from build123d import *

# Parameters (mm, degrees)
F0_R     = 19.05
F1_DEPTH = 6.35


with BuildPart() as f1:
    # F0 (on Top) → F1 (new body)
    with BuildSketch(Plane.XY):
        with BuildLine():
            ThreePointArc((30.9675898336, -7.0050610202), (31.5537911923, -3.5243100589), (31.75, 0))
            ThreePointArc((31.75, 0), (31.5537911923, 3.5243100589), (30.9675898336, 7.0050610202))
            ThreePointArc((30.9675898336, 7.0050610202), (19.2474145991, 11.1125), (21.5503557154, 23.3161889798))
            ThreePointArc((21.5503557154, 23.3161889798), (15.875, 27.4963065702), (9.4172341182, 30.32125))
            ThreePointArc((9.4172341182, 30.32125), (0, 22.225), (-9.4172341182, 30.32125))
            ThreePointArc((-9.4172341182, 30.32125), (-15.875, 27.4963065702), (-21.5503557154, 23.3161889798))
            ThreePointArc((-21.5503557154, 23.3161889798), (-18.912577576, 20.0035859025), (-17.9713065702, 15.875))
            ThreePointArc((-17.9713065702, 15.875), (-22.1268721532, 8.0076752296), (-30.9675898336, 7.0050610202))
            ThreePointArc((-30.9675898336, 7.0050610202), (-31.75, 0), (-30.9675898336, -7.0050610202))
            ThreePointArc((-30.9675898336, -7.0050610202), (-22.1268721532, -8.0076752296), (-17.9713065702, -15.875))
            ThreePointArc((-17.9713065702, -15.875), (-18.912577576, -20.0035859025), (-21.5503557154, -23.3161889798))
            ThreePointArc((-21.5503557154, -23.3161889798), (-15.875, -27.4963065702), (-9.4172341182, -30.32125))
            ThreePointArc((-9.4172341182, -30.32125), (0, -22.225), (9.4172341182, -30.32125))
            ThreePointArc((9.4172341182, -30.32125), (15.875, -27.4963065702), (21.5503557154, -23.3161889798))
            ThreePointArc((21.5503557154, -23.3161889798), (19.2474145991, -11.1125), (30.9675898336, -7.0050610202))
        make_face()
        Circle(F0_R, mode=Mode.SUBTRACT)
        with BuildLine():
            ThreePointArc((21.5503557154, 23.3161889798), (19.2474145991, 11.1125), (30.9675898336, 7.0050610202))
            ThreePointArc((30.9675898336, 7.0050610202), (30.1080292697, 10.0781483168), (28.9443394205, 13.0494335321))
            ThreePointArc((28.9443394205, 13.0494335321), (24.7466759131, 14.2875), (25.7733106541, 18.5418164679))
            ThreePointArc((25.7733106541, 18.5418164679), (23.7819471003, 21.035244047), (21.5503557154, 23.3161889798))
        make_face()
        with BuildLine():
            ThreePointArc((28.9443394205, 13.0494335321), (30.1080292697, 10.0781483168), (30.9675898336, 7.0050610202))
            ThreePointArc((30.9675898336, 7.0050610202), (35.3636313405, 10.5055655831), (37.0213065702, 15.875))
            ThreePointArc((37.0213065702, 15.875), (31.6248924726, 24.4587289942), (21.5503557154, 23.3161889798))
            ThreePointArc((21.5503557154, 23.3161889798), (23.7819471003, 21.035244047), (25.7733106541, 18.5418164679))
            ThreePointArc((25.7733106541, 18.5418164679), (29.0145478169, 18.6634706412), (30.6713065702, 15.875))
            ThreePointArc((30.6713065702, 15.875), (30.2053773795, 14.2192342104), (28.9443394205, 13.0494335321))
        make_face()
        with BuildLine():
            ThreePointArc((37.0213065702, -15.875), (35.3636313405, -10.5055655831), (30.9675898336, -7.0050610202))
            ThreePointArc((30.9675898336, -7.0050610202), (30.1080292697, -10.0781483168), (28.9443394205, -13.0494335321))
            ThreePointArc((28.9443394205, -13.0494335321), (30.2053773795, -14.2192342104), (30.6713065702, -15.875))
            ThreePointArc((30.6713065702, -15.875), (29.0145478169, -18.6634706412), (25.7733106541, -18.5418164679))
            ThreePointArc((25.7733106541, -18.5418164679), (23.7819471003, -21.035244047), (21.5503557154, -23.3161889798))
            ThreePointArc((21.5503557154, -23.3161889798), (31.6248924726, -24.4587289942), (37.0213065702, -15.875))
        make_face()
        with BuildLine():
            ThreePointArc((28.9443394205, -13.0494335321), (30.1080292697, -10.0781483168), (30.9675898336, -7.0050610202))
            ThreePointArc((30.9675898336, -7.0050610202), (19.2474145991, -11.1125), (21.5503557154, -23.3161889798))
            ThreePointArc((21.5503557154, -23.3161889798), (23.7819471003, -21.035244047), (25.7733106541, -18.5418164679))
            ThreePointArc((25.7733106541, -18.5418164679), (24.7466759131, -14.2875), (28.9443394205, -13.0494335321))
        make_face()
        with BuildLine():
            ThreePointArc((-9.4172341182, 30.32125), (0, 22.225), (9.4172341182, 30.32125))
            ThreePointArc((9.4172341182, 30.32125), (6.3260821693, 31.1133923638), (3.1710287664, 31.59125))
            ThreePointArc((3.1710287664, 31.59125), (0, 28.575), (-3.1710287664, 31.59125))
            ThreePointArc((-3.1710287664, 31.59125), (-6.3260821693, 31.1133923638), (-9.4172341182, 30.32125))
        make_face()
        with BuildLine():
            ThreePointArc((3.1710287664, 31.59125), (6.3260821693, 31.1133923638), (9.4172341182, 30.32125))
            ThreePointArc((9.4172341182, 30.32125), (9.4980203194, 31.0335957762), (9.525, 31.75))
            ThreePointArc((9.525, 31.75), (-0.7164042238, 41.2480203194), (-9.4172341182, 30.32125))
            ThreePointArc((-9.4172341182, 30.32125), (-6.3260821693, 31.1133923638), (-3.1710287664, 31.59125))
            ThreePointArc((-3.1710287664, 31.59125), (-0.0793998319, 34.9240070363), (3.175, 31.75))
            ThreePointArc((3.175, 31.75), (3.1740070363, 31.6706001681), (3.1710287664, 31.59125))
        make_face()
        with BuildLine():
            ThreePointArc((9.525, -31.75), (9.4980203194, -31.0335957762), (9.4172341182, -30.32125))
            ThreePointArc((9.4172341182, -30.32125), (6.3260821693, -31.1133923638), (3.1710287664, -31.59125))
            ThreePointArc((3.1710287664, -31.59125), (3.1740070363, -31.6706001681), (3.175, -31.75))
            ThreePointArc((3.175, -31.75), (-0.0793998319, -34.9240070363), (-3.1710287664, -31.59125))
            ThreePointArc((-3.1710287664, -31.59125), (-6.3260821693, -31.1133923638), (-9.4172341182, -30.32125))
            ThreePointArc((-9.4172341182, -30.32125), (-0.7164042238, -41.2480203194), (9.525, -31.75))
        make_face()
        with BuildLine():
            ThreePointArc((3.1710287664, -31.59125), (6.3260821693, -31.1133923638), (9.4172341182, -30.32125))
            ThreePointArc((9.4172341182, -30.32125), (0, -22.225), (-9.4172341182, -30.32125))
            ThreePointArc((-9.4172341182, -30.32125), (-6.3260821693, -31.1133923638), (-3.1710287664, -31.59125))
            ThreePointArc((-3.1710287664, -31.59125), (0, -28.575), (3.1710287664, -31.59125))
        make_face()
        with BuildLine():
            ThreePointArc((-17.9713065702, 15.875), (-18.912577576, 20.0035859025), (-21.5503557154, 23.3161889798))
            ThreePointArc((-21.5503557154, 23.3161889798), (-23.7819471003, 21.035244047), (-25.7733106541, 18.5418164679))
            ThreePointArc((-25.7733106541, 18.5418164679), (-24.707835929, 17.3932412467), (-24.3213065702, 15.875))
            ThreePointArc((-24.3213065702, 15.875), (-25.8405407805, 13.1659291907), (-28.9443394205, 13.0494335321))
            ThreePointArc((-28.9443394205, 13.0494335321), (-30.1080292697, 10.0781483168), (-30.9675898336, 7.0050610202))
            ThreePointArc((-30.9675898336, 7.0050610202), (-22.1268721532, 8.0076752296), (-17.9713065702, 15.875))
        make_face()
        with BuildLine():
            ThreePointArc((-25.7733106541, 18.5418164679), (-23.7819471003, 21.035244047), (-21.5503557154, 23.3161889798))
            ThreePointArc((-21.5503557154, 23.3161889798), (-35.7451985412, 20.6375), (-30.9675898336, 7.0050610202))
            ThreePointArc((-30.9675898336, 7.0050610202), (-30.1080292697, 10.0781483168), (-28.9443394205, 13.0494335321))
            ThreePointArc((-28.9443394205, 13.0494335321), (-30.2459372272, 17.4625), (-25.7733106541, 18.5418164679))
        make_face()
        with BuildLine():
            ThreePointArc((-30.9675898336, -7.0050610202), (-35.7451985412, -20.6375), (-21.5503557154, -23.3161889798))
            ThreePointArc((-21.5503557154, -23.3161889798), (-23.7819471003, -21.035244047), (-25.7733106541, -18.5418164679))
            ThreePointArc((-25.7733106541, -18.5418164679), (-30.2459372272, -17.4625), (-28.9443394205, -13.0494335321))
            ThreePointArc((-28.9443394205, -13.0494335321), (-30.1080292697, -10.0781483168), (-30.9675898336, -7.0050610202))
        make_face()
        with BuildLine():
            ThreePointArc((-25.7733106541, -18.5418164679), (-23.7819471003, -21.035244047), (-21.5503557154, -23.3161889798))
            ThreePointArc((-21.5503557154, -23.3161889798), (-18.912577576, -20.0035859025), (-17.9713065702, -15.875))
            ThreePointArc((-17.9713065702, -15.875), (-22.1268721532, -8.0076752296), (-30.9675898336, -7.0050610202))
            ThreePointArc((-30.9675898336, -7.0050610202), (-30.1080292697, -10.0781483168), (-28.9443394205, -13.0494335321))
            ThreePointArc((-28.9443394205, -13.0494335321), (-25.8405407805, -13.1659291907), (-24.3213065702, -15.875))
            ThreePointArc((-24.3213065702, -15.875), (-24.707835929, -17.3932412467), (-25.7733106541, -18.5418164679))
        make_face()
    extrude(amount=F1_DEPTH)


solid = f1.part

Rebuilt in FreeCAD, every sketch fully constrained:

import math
import FreeCAD as App
import Part
import Sketcher
from FreeCAD import Vector
Q = App.Units.Quantity

doc = App.newDocument("Part")
body = doc.addObject("PartDesign::Body", "Body")

sketch1 = body.newObject("Sketcher::SketchObject", "Sketch")
sketch1.AttachmentSupport = (doc.getObject("XY_Plane"), [""])
sketch1.MapMode = "FlatFace"
sketch1.addGeometry(Part.ArcOfCircle(Part.Circle(Vector(0, 0, 0), Vector(0, 0, 1), 31.75), math.radians(-12.75), math.radians(0)), False)
sketch1.addGeometry(Part.ArcOfCircle(Part.Circle(Vector(0, 0, 0), Vector(0, 0, 1), 31.75), math.radians(0), math.radians(12.75)), False)
sketch1.addGeometry(Part.ArcOfCircle(Part.Circle(Vector(27.5, 15.88, 0), Vector(0, 0, 1), 9.53), math.radians(-69), math.radians(0)), False)
sketch1.addGeometry(Part.ArcOfCircle(Part.Circle(Vector(27.5, 15.88, 0), Vector(0, 0, 1), 9.53), math.radians(0), math.radians(129)), False)
sketch1.addGeometry(Part.ArcOfCircle(Part.Circle(Vector(0, 0, 0), Vector(0, 0, 1), 31.75), math.radians(47), math.radians(73)), False)
sketch1.addGeometry(Part.ArcOfCircle(Part.Circle(Vector(0, 31.75, 0), Vector(0, 0, 1), 9.53), math.radians(-8.63), math.radians(0)), False)
sketch1.addGeometry(Part.ArcOfCircle(Part.Circle(Vector(0, 31.75, 0), Vector(0, 0, 1), 9.53), math.radians(0), math.radians(189)), False)
sketch1.addGeometry(Part.ArcOfCircle(Part.Circle(Vector(0, 0, 0), Vector(0, 0, 1), 31.75), math.radians(107), math.radians(133)), False)
sketch1.addGeometry(Part.ArcOfCircle(Part.Circle(Vector(-27.5, 15.88, 0), Vector(0, 0, 1), 9.53), math.radians(51), math.radians(249)), False)
sketch1.addGeometry(Part.ArcOfCircle(Part.Circle(Vector(0, 0, 0), Vector(0, 0, 1), 31.75), math.radians(167), math.radians(193)), False)
sketch1.addGeometry(Part.ArcOfCircle(Part.Circle(Vector(-27.5, -15.88, 0), Vector(0, 0, 1), 9.53), math.radians(111), math.radians(309)), False)
sketch1.addGeometry(Part.ArcOfCircle(Part.Circle(Vector(0, 0, 0), Vector(0, 0, 1), 31.75), math.radians(-133), math.radians(-107)), False)
sketch1.addGeometry(Part.ArcOfCircle(Part.Circle(Vector(0, -31.75, 0), Vector(0, 0, 1), 9.53), math.radians(171), math.radians(360)), False)
sketch1.addGeometry(Part.ArcOfCircle(Part.Circle(Vector(0, -31.75, 0), Vector(0, 0, 1), 9.53), math.radians(0), math.radians(8.63)), False)
sketch1.addGeometry(Part.ArcOfCircle(Part.Circle(Vector(0, 0, 0), Vector(0, 0, 1), 31.75), math.radians(-73), math.radians(-47)), False)
sketch1.addGeometry(Part.ArcOfCircle(Part.Circle(Vector(27.5, -15.88, 0), Vector(0, 0, 1), 9.53), math.radians(-129), math.radians(0)), False)
sketch1.addGeometry(Part.ArcOfCircle(Part.Circle(Vector(27.5, -15.88, 0), Vector(0, 0, 1), 9.53), math.radians(0), math.radians(69)), False)
sketch1.addGeometry(Part.ArcOfCircle(Part.Circle(Vector(-27.5, 15.88, 0), Vector(0, 0, 1), 3.17), math.radians(0), math.radians(57)), False)
sketch1.addGeometry(Part.ArcOfCircle(Part.Circle(Vector(-27.5, 15.88, 0), Vector(0, 0, 1), 3.17), math.radians(-117), math.radians(0)), False)
sketch1.addGeometry(Part.ArcOfCircle(Part.Circle(Vector(-27.5, 15.88, 0), Vector(0, 0, 1), 3.17), math.radians(57), math.radians(243)), False)
sketch1.addGeometry(Part.ArcOfCircle(Part.Circle(Vector(0, 31.75, 0), Vector(0, 0, 1), 3.17), math.radians(-177), math.radians(-3)), False)
sketch1.addGeometry(Part.ArcOfCircle(Part.Circle(Vector(0, 31.75, 0), Vector(0, 0, 1), 3.17), math.radians(0), math.radians(183)), False)
sketch1.addGeometry(Part.ArcOfCircle(Part.Circle(Vector(0, 31.75, 0), Vector(0, 0, 1), 3.18), math.radians(-2.87), math.radians(0)), False)
sketch1.addGeometry(Part.ArcOfCircle(Part.Circle(Vector(27.5, 15.88, 0), Vector(0, 0, 1), 3.17), math.radians(123), math.radians(297)), False)
sketch1.addGeometry(Part.ArcOfCircle(Part.Circle(Vector(27.5, 15.88, 0), Vector(0, 0, 1), 3.17), math.radians(0), math.radians(123)), False)
sketch1.addGeometry(Part.ArcOfCircle(Part.Circle(Vector(27.5, 15.88, 0), Vector(0, 0, 1), 3.17), math.radians(-63), math.radians(0)), False)
sketch1.addGeometry(Part.Circle(Vector(0, 0, 0), Vector(0, 0, 1), 19.05), False)
sketch1.addGeometry(Part.ArcOfCircle(Part.Circle(Vector(27.5, -15.88, 0), Vector(0, 0, 1), 3.17), math.radians(63), math.radians(237)), False)
sketch1.addGeometry(Part.ArcOfCircle(Part.Circle(Vector(27.5, -15.88, 0), Vector(0, 0, 1), 3.17), math.radians(0), math.radians(63)), False)
sketch1.addGeometry(Part.ArcOfCircle(Part.Circle(Vector(27.5, -15.88, 0), Vector(0, 0, 1), 3.17), math.radians(-123), math.radians(0)), False)
sketch1.addGeometry(Part.ArcOfCircle(Part.Circle(Vector(0, -31.75, 0), Vector(0, 0, 1), 3.17), math.radians(3), math.radians(177)), False)
sketch1.addGeometry(Part.ArcOfCircle(Part.Circle(Vector(0, -31.75, 0), Vector(0, 0, 1), 3.18), math.radians(0), math.radians(2.87)), False)
sketch1.addGeometry(Part.ArcOfCircle(Part.Circle(Vector(0, -31.75, 0), Vector(0, 0, 1), 3.17), math.radians(177), math.radians(360)), False)
sketch1.addGeometry(Part.ArcOfCircle(Part.Circle(Vector(-27.5, -15.88, 0), Vector(0, 0, 1), 3.17), math.radians(0), math.radians(117)), False)
sketch1.addGeometry(Part.ArcOfCircle(Part.Circle(Vector(-27.5, -15.88, 0), Vector(0, 0, 1), 3.17), math.radians(-57), math.radians(0)), False)
sketch1.addGeometry(Part.ArcOfCircle(Part.Circle(Vector(-27.5, -15.88, 0), Vector(0, 0, 1), 3.17), math.radians(117), math.radians(303)), False)
sketch1.addConstraint(Sketcher.Constraint("Tangent", 0, 2, 1, 1))
sketch1.addConstraint(Sketcher.Constraint("Coincident", 1, 2, 2, 1))
sketch1.addConstraint(Sketcher.Constraint("Tangent", 2, 2, 3, 1))
sketch1.addConstraint(Sketcher.Constraint("Coincident", 3, 2, 4, 1))
sketch1.addConstraint(Sketcher.Constraint("Coincident", 4, 2, 5, 1))
sketch1.addConstraint(Sketcher.Constraint("Tangent", 5, 2, 6, 1))
sketch1.addConstraint(Sketcher.Constraint("Coincident", 6, 2, 7, 1))
sketch1.addConstraint(Sketcher.Constraint("Coincident", 7, 2, 8, 1))
sketch1.addConstraint(Sketcher.Constraint("Coincident", 8, 2, 9, 1))
sketch1.addConstraint(Sketcher.Constraint("Coincident", 9, 2, 10, 1))
sketch1.addConstraint(Sketcher.Constraint("Coincident", 10, 2, 11, 1))
sketch1.addConstraint(Sketcher.Constraint("Coincident", 11, 2, 12, 1))
sketch1.addConstraint(Sketcher.Constraint("Tangent", 12, 2, 13, 1))
sketch1.addConstraint(Sketcher.Constraint("Coincident", 13, 2, 14, 1))
sketch1.addConstraint(Sketcher.Constraint("Coincident", 14, 2, 15, 1))
sketch1.addConstraint(Sketcher.Constraint("Tangent", 15, 2, 16, 1))
sketch1.addConstraint(Sketcher.Constraint("Coincident", 16, 2, 0, 1))
sketch1.addConstraint(Sketcher.Constraint("Tangent", 17, 1, 18, 2))
sketch1.addConstraint(Sketcher.Constraint("Tangent", 18, 1, 19, 2))
sketch1.addConstraint(Sketcher.Constraint("Tangent", 19, 1, 17, 2))
sketch1.addConstraint(Sketcher.Constraint("Tangent", 20, 1, 21, 2))
sketch1.addConstraint(Sketcher.Constraint("Tangent", 21, 1, 22, 2))
sketch1.addConstraint(Sketcher.Constraint("Tangent", 22, 1, 20, 2))
sketch1.addConstraint(Sketcher.Constraint("Tangent", 23, 1, 24, 2))
sketch1.addConstraint(Sketcher.Constraint("Tangent", 24, 1, 25, 2))
sketch1.addConstraint(Sketcher.Constraint("Tangent", 25, 1, 23, 2))
sketch1.addConstraint(Sketcher.Constraint("Tangent", 27, 1, 28, 2))
sketch1.addConstraint(Sketcher.Constraint("Tangent", 28, 1, 29, 2))
sketch1.addConstraint(Sketcher.Constraint("Tangent", 29, 1, 27, 2))
sketch1.addConstraint(Sketcher.Constraint("Tangent", 30, 1, 31, 2))
sketch1.addConstraint(Sketcher.Constraint("Tangent", 31, 1, 32, 2))
sketch1.addConstraint(Sketcher.Constraint("Tangent", 32, 1, 30, 2))
sketch1.addConstraint(Sketcher.Constraint("Tangent", 33, 1, 34, 2))
sketch1.addConstraint(Sketcher.Constraint("Tangent", 34, 1, 35, 2))
sketch1.addConstraint(Sketcher.Constraint("Tangent", 35, 1, 33, 2))
sketch1.addConstraint(Sketcher.Constraint("Coincident", 0, 3, -1, 1))
sketch1.addConstraint(Sketcher.Constraint("Coincident", 4, 3, -1, 1))
sketch1.addConstraint(Sketcher.Constraint("Coincident", 7, 3, -1, 1))
sketch1.addConstraint(Sketcher.Constraint("Coincident", 9, 3, -1, 1))
sketch1.addConstraint(Sketcher.Constraint("Coincident", 11, 3, -1, 1))
sketch1.addConstraint(Sketcher.Constraint("Coincident", 14, 3, -1, 1))
sketch1.addConstraint(Sketcher.Constraint("Coincident", 26, 3, -1, 1))
sketch1.addConstraint(Sketcher.Constraint("Coincident", 17, 3, 8, 3))
sketch1.addConstraint(Sketcher.Constraint("Coincident", 20, 3, 5, 3))
sketch1.addConstraint(Sketcher.Constraint("Coincident", 23, 3, 2, 3))
sketch1.addConstraint(Sketcher.Constraint("Coincident", 27, 3, 15, 3))
sketch1.addConstraint(Sketcher.Constraint("Coincident", 30, 3, 12, 3))
sketch1.addConstraint(Sketcher.Constraint("Coincident", 33, 3, 10, 3))
sketch1.addConstraint(Sketcher.Constraint("Equal", 0, 1))
sketch1.addConstraint(Sketcher.Constraint("Equal", 2, 3))
sketch1.addConstraint(Sketcher.Constraint("Equal", 1, 4))
sketch1.addConstraint(Sketcher.Constraint("Equal", 3, 5))
sketch1.addConstraint(Sketcher.Constraint("Equal", 5, 6))
sketch1.addConstraint(Sketcher.Constraint("Equal", 4, 7))
sketch1.addConstraint(Sketcher.Constraint("Equal", 6, 8))
sketch1.addConstraint(Sketcher.Constraint("Equal", 7, 9))
sketch1.addConstraint(Sketcher.Constraint("Equal", 8, 10))
sketch1.addConstraint(Sketcher.Constraint("Equal", 9, 11))
sketch1.addConstraint(Sketcher.Constraint("Equal", 10, 12))
sketch1.addConstraint(Sketcher.Constraint("Equal", 12, 13))
sketch1.addConstraint(Sketcher.Constraint("Equal", 11, 14))
sketch1.addConstraint(Sketcher.Constraint("Equal", 13, 15))
sketch1.addConstraint(Sketcher.Constraint("Equal", 15, 16))
sketch1.addConstraint(Sketcher.Constraint("Equal", 19, 20))
sketch1.addConstraint(Sketcher.Constraint("Equal", 22, 23))
sketch1.addConstraint(Sketcher.Constraint("Equal", 25, 27))
sketch1.addConstraint(Sketcher.Constraint("Equal", 29, 30))
sketch1.addConstraint(Sketcher.Constraint("Equal", 32, 33))
sketch1.addConstraint(Sketcher.Constraint("Symmetric", 2, 3, 10, 3, -1, 1))
sketch1.addConstraint(Sketcher.Constraint("Symmetric", 5, 3, 12, 3, -1, 1))
sketch1.addConstraint(Sketcher.Constraint("Symmetric", 8, 3, 15, 3, -1, 1))
sketch1.addConstraint(Sketcher.Constraint("Symmetric", 2, 3, 8, 3, -2))
sketch1.addConstraint(Sketcher.Constraint("Symmetric", 20, 1, 22, 1, -2))
sketch1.addConstraint(Sketcher.Constraint("PointOnObject", 0, 2, -1))
sketch1.addConstraint(Sketcher.Constraint("Horizontal", 25, 3, 2, 2))
sketch1.addConstraint(Sketcher.Constraint("Horizontal", 22, 3, 5, 2))
sketch1.addConstraint(Sketcher.Constraint("Horizontal", 32, 3, 12, 2))
sketch1.addConstraint(Sketcher.Constraint("Horizontal", 35, 3, 15, 2))
sketch1.addConstraint(Sketcher.Constraint("Horizontal", 2, 2, 17, 1))
sketch1.addConstraint(Sketcher.Constraint("Horizontal", 5, 2, 21, 1))
sketch1.addConstraint(Sketcher.Constraint("Horizontal", 19, 1, 23, 1))
sketch1.addConstraint(Sketcher.Constraint("Horizontal", 17, 1, 24, 1))
sketch1.addConstraint(Sketcher.Constraint("Horizontal", 18, 1, 25, 1))
sketch1.addConstraint(Sketcher.Constraint("Horizontal", 15, 2, 28, 1))
sketch1.addConstraint(Sketcher.Constraint("Horizontal", 12, 2, 31, 1))
sketch1.addConstraint(Sketcher.Constraint("Horizontal", 30, 1, 32, 1))
sketch1.addConstraint(Sketcher.Constraint("Horizontal", 28, 1, 33, 1))
sketch1.addConstraint(Sketcher.Constraint("Horizontal", 29, 1, 34, 1))
sketch1.addConstraint(Sketcher.Constraint("Horizontal", 27, 1, 35, 1))
sketch1.addConstraint(Sketcher.Constraint("Vertical", 25, 1, 27, 1))
sketch1.addConstraint(Sketcher.Constraint("Vertical", 23, 1, 29, 1))
sketch1.addConstraint(Sketcher.Constraint("Vertical", 22, 1, 30, 1))
sketch1.addConstraint(Sketcher.Constraint("Diameter", 26, Q("1.5 in")))
sketch1.addConstraint(Sketcher.Constraint("Radius", 0, Q("1.25 in")))
sketch1.addConstraint(Sketcher.Constraint("Radius", 2, Q("0.375 in")))
sketch1.addConstraint(Sketcher.Constraint("Radius", 17, Q("0.125 in")))
sketch1.addConstraint(Sketcher.Constraint("DistanceY", -1, 1, 5, 3, Q("1.25 in")))
sketch1.addConstraint(Sketcher.Constraint("DistanceY", -1, 1, 2, 3, Q("0.625 in")))
sketch1.addConstraint(Sketcher.Constraint("DistanceX", -1, 1, 1, 2, 30.96759))
sketch1.addConstraint(Sketcher.Constraint("DistanceX", 18, 1, -1, 1, 28.944339))
sketch1.addConstraint(Sketcher.Constraint("DistanceX", 19, 1, -1, 1, 25.773311))
sketch1.addConstraint(Sketcher.Constraint("DistanceX", 20, 1, -1, 1, 3.171029))
pad1 = body.newObject("PartDesign::Pad", "Pad")
pad1.Profile = sketch1
pad1.Length = Q("0.25 in")

doc.recompute()
